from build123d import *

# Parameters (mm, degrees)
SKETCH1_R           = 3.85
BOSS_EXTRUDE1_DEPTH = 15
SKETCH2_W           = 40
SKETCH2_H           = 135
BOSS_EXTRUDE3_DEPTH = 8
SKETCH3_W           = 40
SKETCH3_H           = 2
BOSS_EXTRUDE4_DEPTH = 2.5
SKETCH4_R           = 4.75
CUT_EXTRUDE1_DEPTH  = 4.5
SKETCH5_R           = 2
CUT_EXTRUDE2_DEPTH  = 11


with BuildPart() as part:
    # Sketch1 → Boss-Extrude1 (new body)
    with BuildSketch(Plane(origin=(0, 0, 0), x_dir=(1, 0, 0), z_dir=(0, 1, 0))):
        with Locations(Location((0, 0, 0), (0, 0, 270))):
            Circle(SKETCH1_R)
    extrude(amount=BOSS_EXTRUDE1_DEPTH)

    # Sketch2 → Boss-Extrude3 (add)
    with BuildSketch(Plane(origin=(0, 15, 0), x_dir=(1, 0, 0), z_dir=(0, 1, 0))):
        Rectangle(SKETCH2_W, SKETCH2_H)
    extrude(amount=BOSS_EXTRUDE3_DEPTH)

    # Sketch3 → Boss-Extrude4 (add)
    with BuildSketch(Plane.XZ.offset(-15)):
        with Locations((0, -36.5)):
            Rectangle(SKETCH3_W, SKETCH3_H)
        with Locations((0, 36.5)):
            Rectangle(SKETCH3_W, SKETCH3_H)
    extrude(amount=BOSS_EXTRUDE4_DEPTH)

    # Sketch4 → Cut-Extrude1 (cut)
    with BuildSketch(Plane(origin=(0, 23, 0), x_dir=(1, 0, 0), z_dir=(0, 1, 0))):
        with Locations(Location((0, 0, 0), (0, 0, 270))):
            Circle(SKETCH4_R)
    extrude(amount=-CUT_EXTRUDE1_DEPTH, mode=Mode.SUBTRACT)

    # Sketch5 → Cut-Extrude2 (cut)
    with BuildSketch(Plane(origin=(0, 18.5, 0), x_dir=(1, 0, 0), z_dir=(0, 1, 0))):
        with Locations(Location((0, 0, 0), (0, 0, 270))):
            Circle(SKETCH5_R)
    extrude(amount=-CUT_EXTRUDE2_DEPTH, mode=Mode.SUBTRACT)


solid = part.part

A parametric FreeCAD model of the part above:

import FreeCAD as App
import Part
import Sketcher
from FreeCAD import Vector

doc = App.newDocument("Part")
body = doc.addObject("PartDesign::Body", "Body")

sketch1 = body.newObject("Sketcher::SketchObject", "Sketch")
sketch1.AttachmentSupport = (doc.getObject("XZ_Plane"), [""])
sketch1.MapMode = "FlatFace"
sketch1.addGeometry(Part.Circle(Vector(0, 0, 0), Vector(0, 0, 1), 3.85), False)
sketch1.addConstraint(Sketcher.Constraint("Coincident", 0, 3, -1, 1))
sketch1.addConstraint(Sketcher.Constraint("Diameter", 0, 7.7))
pad1 = body.newObject("PartDesign::Pad", "Pad")
pad1.Profile = sketch1
pad1.Length = 15
pad1.Reversed = True

sketch2 = body.newObject("Sketcher::SketchObject", "Sketch001")
sketch2.AttachmentSupport = (doc.getObject("XZ_Plane"), [""])
sketch2.MapMode = "FlatFace"
sketch2.AttachmentOffset = App.Placement(Vector(0, 0, -15), App.Rotation())
sketch2.addGeometry(Part.LineSegment(Vector(-20, -67.5, 0), Vector(-20, 67.5, 0)), False)
sketch2.addGeometry(Part.LineSegment(Vector(-20, 67.5, 0), Vector(20, 67.5, 0)), False)
sketch2.addGeometry(Part.LineSegment(Vector(20, 67.5, 0), Vector(20, -67.5, 0)), False)
sketch2.addGeometry(Part.LineSegment(Vector(20, -67.5, 0), Vector(-20, -67.5, 0)), False)
sketch2.addConstraint(Sketcher.Constraint("Coincident", 0, 2, 1, 1))
sketch2.addConstraint(Sketcher.Constraint("Coincident", 1, 2, 2, 1))
sketch2.addConstraint(Sketcher.Constraint("Coincident", 2, 2, 3, 1))
sketch2.addConstraint(Sketcher.Constraint("Coincident", 3, 2, 0, 1))
sketch2.addConstraint(Sketcher.Constraint("Vertical", 0))
sketch2.addConstraint(Sketcher.Constraint("Horizontal", 1))
sketch2.addConstraint(Sketcher.Constraint("Vertical", 2))
sketch2.addConstraint(Sketcher.Constraint("Horizontal", 3))
sketch2.addConstraint(Sketcher.Constraint("Symmetric", 0, 2, 2, 2, -1, 1))
sketch2.addConstraint(Sketcher.Constraint("DistanceX", 1, 1, 1, 2, 40.0))
sketch2.addConstraint(Sketcher.Constraint("DistanceY", 0, 1, 0, 2, 135.0))
pad2 = body.newObject("PartDesign::Pad", "Pad001")
pad2.Profile = sketch2
pad2.Length = 8
pad2.Reversed = True

sketch3 = body.newObject("Sketcher::SketchObject", "Sketch002")
sketch3.AttachmentSupport = (doc.getObject("XZ_Plane"), [""])
sketch3.MapMode = "FlatFace"
sketch3.AttachmentOffset = App.Placement(Vector(0, 0, -15), App.Rotation())
sketch3.addGeometry(Part.LineSegment(Vector(-20, -35.5, 0), Vector(-20, -37.5, 0)), False)
sketch3.addGeometry(Part.LineSegment(Vector(-20, -37.5, 0), Vector(20, -37.5, 0)), False)
sketch3.addGeometry(Part.LineSegment(Vector(20, -37.5, 0), Vector(20, -35.5, 0)), False)
sketch3.addGeometry(Part.LineSegment(Vector(20, -35.5, 0), Vector(-20, -35.5, 0)), False)
sketch3.addGeometry(Part.LineSegment(Vector(-20, 37.5, 0), Vector(-20, 35.5, 0)), False)
sketch3.addGeometry(Part.LineSegment(Vector(-20, 35.5, 0), Vector(20, 35.5, 0)), False)
sketch3.addGeometry(Part.LineSegment(Vector(20, 35.5, 0), Vector(20, 37.5, 0)), False)
sketch3.addGeometry(Part.LineSegment(Vector(20, 37.5, 0), Vector(-20, 37.5, 0)), False)
sketch3.addConstraint(Sketcher.Constraint("Coincident", 0, 2, 1, 1))
sketch3.addConstraint(Sketcher.Constraint("Coincident", 1, 2, 2, 1))
sketch3.addConstraint(Sketcher.Constraint("Coincident", 2, 2, 3, 1))
sketch3.addConstraint(Sketcher.Constraint("Coincident", 3, 2, 0, 1))
sketch3.addConstraint(Sketcher.Constraint("Coincident", 4, 2, 5, 1))
sketch3.addConstraint(Sketcher.Constraint("Coincident", 5, 2, 6, 1))
sketch3.addConstraint(Sketcher.Constraint("Coincident", 6, 2, 7, 1))
sketch3.addConstraint(Sketcher.Constraint("Coincident", 7, 2, 4, 1))
sketch3.addConstraint(Sketcher.Constraint("Vertical", 0))
sketch3.addConstraint(Sketcher.Constraint("Horizontal", 1))
sketch3.addConstraint(Sketcher.Constraint("Vertical", 2))
sketch3.addConstraint(Sketcher.Constraint("Horizontal", 3))
sketch3.addConstraint(Sketcher.Constraint("Vertical", 4))
sketch3.addConstraint(Sketcher.Constraint("Horizontal", 5))
sketch3.addConstraint(Sketcher.Constraint("Vertical", 6))
sketch3.addConstraint(Sketcher.Constraint("Horizontal", 7))
sketch3.addConstraint(Sketcher.Constraint("Symmetric", 2, 2, 4, 2, -1, 1))
sketch3.addConstraint(Sketcher.Constraint("Symmetric", 0, 2, 6, 2, -1, 1))
sketch3.addConstraint(Sketcher.Constraint("Vertical", 3, 2, 4, 2))
sketch3.addConstraint(Sketcher.Constraint("DistanceX", 1, 1, 1, 2, 40.0))
sketch3.addConstraint(Sketcher.Constraint("DistanceY", 0, 2, 0, 1, 2.0))
sketch3.addConstraint(Sketcher.Constraint("DistanceY", 3, 2, 4, 2, 71.0))
pad3 = body.newObject("PartDesign::Pad", "Pad002")
pad3.Profile = sketch3
pad3.Length = 2.5

sketch4 = body.newObject("Sketcher::SketchObject", "Sketch003")
sketch4.AttachmentSupport = (doc.getObject("XZ_Plane"), [""])
sketch4.MapMode = "FlatFace"
sketch4.AttachmentOffset = App.Placement(Vector(0, 0, -23), App.Rotation())
sketch4.addGeometry(Part.Circle(Vector(0, 0, 0), Vector(0, 0, 1), 4.75), False)
sketch4.addConstraint(Sketcher.Constraint("Coincident", 0, 3, -1, 1))
sketch4.addConstraint(Sketcher.Constraint("Diameter", 0, 9.5))
pocket1 = body.newObject("PartDesign::Pocket", "Pocket")
pocket1.Profile = sketch4
pocket1.Length = 4.5
pocket1.Reversed = True

sketch5 = body.newObject("Sketcher::SketchObject", "Sketch004")
sketch5.AttachmentSupport = (doc.getObject("XZ_Plane"), [""])
sketch5.MapMode = "FlatFace"
sketch5.AttachmentOffset = App.Placement(Vector(0, 0, -18.5), App.Rotation())
sketch5.addGeometry(Part.Circle(Vector(0, 0, 0), Vector(0, 0, 1), 2), False)
sketch5.addConstraint(Sketcher.Constraint("Coincident", 0, 3, -1, 1))
sketch5.addConstraint(Sketcher.Constraint("Diameter", 0, 4.0))
pocket2 = body.newObject("PartDesign::Pocket", "Pocket001")
pocket2.Profile = sketch5
pocket2.Length = 11
pocket2.Reversed = True

doc.recompute()
